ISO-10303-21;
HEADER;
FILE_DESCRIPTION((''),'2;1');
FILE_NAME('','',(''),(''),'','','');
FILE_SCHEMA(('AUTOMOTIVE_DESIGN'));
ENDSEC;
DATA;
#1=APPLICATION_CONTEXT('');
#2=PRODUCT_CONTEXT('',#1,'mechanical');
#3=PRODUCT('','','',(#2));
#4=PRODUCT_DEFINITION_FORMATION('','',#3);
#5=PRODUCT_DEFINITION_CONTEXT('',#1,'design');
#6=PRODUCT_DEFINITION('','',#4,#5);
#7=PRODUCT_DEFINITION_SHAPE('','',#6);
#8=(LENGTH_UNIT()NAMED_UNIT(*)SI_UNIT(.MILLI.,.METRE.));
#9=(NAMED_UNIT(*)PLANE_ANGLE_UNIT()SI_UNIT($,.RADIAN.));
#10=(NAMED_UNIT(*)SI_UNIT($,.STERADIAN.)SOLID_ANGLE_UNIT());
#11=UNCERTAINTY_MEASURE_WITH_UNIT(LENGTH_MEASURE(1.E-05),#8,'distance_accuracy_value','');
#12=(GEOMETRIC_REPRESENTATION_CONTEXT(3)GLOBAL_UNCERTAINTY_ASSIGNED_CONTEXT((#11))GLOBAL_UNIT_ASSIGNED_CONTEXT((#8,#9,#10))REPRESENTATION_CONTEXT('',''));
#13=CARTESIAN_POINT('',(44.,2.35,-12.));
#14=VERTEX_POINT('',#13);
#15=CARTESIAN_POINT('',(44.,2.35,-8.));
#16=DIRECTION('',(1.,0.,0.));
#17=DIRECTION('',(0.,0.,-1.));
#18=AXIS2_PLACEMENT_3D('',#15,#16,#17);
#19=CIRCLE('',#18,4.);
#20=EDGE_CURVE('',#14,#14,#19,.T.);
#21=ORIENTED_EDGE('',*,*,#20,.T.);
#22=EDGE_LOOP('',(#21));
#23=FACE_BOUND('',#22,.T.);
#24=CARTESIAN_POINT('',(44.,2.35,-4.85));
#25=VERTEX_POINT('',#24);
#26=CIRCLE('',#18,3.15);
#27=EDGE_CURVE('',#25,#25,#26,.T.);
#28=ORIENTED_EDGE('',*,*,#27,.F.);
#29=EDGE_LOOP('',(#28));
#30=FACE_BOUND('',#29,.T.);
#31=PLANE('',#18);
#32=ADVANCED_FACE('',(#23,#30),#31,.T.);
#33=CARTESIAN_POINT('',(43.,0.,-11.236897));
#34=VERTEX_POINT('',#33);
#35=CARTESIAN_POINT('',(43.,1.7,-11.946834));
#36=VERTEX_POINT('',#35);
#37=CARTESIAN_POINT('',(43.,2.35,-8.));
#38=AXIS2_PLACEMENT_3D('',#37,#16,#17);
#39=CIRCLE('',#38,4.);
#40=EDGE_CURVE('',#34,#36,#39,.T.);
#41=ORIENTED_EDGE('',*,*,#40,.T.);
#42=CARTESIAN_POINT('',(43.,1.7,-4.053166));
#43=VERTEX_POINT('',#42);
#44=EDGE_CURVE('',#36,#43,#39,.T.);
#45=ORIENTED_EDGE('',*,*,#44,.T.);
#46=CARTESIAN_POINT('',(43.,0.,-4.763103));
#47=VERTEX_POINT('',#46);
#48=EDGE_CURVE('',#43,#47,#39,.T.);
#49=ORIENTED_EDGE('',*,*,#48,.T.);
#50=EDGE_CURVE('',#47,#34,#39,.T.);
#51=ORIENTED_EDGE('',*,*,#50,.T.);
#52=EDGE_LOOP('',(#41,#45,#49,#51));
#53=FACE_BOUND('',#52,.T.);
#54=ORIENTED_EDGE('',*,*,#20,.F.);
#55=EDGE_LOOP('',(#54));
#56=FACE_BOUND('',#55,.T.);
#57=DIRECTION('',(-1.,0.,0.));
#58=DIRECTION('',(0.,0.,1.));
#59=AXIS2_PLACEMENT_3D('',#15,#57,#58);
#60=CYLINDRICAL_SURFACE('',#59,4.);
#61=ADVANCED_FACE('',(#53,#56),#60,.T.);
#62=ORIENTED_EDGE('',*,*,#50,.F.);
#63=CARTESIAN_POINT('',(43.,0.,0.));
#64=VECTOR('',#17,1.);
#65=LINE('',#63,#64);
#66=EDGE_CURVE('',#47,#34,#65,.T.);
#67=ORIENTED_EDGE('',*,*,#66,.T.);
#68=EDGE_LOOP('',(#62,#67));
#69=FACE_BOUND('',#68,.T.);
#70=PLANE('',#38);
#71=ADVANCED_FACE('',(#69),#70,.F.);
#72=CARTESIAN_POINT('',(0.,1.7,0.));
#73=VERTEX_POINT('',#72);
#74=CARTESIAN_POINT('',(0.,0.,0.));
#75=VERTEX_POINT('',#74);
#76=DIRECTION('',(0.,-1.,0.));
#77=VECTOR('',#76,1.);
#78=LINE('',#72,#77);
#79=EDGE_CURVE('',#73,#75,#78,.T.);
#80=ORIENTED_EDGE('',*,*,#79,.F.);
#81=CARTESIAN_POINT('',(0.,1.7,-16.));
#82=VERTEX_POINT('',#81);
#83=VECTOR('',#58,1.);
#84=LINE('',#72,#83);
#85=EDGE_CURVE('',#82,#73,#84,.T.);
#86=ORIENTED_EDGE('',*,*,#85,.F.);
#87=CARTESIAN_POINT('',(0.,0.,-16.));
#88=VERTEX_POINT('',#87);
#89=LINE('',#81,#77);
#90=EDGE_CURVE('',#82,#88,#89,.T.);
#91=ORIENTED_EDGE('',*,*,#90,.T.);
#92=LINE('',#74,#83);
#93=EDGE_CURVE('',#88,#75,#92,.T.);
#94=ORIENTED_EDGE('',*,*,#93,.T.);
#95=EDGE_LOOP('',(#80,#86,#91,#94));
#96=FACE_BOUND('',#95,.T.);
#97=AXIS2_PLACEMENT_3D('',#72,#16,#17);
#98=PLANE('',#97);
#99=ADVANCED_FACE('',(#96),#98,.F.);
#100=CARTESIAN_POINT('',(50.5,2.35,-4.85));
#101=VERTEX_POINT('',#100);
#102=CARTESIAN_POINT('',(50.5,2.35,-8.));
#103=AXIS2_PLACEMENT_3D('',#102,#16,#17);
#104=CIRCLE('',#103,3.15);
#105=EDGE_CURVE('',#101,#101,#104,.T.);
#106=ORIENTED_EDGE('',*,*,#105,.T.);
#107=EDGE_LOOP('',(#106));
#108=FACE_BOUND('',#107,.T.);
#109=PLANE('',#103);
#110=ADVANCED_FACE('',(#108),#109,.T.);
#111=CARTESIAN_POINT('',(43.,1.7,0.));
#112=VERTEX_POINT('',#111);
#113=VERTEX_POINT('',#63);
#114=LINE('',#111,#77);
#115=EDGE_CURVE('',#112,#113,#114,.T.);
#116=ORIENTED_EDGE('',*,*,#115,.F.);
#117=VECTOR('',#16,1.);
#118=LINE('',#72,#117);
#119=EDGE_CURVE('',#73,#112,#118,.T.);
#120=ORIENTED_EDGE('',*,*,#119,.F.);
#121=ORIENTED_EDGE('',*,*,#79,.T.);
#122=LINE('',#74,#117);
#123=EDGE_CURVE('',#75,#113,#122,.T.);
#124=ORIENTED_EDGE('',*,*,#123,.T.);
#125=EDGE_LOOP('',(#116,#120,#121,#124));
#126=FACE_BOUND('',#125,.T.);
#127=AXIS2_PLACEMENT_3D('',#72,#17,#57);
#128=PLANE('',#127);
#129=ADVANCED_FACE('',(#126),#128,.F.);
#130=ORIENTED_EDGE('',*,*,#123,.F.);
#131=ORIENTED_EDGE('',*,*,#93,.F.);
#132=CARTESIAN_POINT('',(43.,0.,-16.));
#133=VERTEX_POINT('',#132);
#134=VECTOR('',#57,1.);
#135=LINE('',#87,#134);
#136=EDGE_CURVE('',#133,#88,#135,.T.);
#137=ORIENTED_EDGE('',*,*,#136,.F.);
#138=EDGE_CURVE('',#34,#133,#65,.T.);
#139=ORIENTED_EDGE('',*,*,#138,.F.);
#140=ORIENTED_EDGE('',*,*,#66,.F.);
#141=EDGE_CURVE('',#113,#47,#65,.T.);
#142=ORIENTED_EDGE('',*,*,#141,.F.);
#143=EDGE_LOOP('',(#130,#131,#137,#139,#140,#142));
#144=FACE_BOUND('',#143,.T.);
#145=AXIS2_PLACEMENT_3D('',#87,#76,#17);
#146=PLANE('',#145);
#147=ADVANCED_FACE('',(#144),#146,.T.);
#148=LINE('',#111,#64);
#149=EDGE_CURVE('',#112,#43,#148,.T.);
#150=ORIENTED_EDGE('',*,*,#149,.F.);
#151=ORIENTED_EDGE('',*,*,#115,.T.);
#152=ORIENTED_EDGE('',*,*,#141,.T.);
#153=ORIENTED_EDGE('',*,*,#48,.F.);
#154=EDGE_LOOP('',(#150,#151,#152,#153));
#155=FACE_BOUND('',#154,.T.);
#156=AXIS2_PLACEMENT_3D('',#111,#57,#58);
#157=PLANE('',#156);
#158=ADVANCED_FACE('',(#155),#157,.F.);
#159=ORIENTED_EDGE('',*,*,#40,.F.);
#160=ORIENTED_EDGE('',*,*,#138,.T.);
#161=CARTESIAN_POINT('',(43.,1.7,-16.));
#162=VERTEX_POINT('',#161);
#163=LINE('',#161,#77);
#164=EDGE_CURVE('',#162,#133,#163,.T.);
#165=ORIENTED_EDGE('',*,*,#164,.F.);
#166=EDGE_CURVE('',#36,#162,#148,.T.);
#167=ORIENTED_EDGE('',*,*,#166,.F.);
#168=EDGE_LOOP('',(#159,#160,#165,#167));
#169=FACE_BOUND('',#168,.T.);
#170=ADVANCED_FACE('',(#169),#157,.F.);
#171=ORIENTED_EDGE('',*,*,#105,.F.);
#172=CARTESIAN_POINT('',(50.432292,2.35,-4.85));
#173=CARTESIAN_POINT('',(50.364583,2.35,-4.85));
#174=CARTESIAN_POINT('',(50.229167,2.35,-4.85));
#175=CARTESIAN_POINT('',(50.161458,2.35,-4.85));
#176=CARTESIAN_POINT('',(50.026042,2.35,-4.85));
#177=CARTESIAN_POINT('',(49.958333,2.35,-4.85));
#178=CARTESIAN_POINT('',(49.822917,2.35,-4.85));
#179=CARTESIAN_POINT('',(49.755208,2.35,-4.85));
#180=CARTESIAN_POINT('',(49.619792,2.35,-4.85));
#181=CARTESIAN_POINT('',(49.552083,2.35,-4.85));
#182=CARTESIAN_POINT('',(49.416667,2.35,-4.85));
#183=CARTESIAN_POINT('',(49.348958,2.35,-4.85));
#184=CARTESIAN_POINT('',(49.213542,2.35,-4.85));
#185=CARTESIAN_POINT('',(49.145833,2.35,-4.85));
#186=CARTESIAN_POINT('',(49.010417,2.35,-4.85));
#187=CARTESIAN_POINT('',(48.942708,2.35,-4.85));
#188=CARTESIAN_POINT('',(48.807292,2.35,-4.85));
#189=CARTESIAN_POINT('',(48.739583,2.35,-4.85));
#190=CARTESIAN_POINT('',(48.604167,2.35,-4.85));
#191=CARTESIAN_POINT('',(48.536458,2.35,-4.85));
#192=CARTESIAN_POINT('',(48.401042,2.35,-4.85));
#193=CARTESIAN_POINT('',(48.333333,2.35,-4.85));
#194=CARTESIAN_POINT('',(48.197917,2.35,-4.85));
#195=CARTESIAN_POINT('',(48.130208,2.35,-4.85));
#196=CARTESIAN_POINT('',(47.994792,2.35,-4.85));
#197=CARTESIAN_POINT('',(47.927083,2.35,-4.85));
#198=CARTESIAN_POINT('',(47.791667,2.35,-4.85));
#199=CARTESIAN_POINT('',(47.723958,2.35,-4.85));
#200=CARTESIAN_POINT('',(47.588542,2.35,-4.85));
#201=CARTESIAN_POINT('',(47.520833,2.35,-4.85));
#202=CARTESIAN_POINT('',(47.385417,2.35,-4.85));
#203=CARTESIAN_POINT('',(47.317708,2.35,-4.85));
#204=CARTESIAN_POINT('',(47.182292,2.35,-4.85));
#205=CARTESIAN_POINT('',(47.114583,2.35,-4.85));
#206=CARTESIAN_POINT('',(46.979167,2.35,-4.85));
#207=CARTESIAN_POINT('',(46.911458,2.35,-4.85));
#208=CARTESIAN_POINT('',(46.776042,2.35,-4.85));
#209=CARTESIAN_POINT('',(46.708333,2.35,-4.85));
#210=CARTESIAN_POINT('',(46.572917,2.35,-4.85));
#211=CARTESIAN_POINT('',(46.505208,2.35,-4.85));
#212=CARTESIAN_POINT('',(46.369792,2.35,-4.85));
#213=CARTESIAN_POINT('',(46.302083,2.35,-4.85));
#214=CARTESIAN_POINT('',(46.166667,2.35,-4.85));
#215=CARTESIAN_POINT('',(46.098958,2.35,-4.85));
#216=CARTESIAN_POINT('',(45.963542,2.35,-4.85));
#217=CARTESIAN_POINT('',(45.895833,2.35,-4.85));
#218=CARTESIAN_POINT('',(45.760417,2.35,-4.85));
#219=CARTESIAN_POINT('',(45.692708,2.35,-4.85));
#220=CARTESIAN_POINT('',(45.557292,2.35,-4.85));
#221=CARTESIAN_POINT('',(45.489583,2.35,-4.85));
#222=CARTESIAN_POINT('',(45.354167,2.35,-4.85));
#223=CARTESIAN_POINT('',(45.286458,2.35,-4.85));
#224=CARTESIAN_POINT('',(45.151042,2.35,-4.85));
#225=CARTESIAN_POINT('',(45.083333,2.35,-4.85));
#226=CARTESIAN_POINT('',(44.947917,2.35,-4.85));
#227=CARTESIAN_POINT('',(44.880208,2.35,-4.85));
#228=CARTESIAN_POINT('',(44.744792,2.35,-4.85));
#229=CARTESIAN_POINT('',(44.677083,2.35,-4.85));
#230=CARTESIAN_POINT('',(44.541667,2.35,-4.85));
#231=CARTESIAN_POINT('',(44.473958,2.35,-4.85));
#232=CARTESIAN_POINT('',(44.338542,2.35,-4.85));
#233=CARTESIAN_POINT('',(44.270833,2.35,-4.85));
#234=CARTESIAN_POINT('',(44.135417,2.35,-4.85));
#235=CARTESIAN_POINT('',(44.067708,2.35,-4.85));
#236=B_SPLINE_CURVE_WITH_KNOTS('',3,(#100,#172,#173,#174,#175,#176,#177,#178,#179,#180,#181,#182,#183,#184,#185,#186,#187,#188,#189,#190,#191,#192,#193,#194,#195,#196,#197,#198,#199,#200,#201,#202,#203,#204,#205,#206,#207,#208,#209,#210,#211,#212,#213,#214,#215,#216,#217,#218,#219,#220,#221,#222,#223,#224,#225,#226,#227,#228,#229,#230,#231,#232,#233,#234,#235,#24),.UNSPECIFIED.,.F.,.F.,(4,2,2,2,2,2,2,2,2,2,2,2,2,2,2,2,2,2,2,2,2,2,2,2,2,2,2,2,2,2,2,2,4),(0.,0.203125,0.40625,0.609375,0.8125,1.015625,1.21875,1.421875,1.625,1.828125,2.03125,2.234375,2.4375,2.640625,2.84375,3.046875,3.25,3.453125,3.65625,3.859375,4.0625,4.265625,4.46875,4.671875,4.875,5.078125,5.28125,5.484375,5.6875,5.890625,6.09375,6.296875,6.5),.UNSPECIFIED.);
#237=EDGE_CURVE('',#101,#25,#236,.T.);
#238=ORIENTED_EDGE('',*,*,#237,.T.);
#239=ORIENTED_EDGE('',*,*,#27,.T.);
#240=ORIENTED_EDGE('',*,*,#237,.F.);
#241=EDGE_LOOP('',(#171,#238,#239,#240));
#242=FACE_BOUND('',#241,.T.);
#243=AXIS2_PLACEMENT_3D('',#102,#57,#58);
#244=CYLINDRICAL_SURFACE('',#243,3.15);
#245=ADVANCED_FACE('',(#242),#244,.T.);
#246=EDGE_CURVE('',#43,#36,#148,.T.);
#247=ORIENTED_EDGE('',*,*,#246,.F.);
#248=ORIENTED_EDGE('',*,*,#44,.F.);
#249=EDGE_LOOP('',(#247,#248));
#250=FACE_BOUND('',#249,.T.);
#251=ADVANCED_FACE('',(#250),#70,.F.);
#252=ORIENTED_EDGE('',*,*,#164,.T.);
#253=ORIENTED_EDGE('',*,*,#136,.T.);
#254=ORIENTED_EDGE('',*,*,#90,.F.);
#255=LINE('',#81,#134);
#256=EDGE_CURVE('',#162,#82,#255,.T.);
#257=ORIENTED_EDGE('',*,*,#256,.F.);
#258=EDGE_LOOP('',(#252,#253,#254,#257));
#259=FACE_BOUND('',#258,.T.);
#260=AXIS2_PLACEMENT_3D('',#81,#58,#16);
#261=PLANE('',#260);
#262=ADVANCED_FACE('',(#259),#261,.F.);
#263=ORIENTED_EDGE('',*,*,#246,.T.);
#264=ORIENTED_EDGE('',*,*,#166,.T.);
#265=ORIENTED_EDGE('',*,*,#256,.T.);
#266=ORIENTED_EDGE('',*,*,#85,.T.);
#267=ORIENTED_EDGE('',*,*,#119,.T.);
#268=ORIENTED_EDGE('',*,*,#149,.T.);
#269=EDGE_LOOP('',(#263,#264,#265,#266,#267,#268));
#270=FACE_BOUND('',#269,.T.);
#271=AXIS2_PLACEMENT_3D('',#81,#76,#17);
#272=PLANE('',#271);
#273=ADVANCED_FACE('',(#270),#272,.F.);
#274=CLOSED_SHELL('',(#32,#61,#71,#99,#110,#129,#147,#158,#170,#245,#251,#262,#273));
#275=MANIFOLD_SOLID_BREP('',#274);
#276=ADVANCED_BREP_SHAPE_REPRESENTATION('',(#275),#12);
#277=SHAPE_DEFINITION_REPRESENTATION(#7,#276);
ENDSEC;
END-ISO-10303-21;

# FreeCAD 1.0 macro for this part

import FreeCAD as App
import Part
import Sketcher
Q = App.Units.Quantity


def add_polygon(sketch, points):
    """Adds a closed chain of lines whose ends are joined by coincident constraints."""
    first, n = sketch.GeometryCount, len(points)
    for a, b in zip(points, points[1:] + points[:1]):
        sketch.addGeometry(Part.LineSegment(App.Vector(*a, 0), App.Vector(*b, 0)), False)
    for i in range(n):
        sketch.addConstraint(Sketcher.Constraint("Coincident", first + i, 2, first + (i + 1) % n, 1))

doc = App.newDocument("Part")
body = doc.addObject("PartDesign::Body", "Body")

# Sketch on XZ plane
sketch1 = body.newObject("Sketcher::SketchObject", "Sketch")
sketch1.AttachmentSupport = (doc.getObject("XZ_Plane"), [""])
sketch1.MapMode = "FlatFace"
add_polygon(sketch1, [(0, -16), (0, 0), (43, 0), (43, -16)])  # lines 0-3
sketch1.addConstraint([
    Sketcher.Constraint("Vertical", 0),
    Sketcher.Constraint("Horizontal", 1),
    Sketcher.Constraint("Vertical", 2),
    Sketcher.Constraint("Horizontal", 3),
    Sketcher.Constraint("Coincident", 0, 2, -1, 1),
    Sketcher.Constraint("DistanceX", 1, 1, 1, 2, Q("43 mm")),
    Sketcher.Constraint("DistanceY", 0, 1, 0, 2, Q("16 mm")),
])
pad1 = body.newObject("PartDesign::Pad", "Pad")
pad1.Profile = sketch1
pad1.Length = 1.7
pad1.Reversed = True

# Sketch on YZ plane
sketch2 = body.newObject("Sketcher::SketchObject", "Sketch001")
sketch2.AttachmentSupport = (doc.getObject("YZ_Plane"), [""])
sketch2.MapMode = "FlatFace"
sketch2.AttachmentOffset = App.Placement(App.Vector(0, 0, 43), App.Rotation())
sketch2.addGeometry(Part.Circle(App.Vector(2.4, -8, 0), App.Vector(0, 0, 1), 4), False)
sketch2.addConstraint([
    Sketcher.Constraint("Diameter", 0, Q("8 mm")),
    Sketcher.Constraint("DistanceY", 0, 3, -1, 1, Q("8 mm")),
    Sketcher.Constraint("DistanceX", -1, 1, 0, 3, Q("2.35 mm")),
])
pad2 = body.newObject("PartDesign::Pad", "Pad001")
pad2.Profile = sketch2
pad2.Length = 1

# Sketch on YZ plane
sketch3 = body.newObject("Sketcher::SketchObject", "Sketch002")
sketch3.AttachmentSupport = (doc.getObject("YZ_Plane"), [""])
sketch3.MapMode = "FlatFace"
sketch3.AttachmentOffset = App.Placement(App.Vector(0, 0, 44), App.Rotation())
sketch3.addGeometry(Part.Circle(App.Vector(2.4, -8, 0), App.Vector(0, 0, 1), 3.1), False)
sketch3.addConstraint([
    Sketcher.Constraint("Diameter", 0, Q("6.3 mm")),
    Sketcher.Constraint("DistanceY", 0, 3, -1, 1, Q("8 mm")),
    Sketcher.Constraint("DistanceX", -1, 1, 0, 3, Q("2.35 mm")),
])
pad3 = body.newObject("PartDesign::Pad", "Pad002")
pad3.Profile = sketch3
pad3.Length = 6.5

doc.recompute()
